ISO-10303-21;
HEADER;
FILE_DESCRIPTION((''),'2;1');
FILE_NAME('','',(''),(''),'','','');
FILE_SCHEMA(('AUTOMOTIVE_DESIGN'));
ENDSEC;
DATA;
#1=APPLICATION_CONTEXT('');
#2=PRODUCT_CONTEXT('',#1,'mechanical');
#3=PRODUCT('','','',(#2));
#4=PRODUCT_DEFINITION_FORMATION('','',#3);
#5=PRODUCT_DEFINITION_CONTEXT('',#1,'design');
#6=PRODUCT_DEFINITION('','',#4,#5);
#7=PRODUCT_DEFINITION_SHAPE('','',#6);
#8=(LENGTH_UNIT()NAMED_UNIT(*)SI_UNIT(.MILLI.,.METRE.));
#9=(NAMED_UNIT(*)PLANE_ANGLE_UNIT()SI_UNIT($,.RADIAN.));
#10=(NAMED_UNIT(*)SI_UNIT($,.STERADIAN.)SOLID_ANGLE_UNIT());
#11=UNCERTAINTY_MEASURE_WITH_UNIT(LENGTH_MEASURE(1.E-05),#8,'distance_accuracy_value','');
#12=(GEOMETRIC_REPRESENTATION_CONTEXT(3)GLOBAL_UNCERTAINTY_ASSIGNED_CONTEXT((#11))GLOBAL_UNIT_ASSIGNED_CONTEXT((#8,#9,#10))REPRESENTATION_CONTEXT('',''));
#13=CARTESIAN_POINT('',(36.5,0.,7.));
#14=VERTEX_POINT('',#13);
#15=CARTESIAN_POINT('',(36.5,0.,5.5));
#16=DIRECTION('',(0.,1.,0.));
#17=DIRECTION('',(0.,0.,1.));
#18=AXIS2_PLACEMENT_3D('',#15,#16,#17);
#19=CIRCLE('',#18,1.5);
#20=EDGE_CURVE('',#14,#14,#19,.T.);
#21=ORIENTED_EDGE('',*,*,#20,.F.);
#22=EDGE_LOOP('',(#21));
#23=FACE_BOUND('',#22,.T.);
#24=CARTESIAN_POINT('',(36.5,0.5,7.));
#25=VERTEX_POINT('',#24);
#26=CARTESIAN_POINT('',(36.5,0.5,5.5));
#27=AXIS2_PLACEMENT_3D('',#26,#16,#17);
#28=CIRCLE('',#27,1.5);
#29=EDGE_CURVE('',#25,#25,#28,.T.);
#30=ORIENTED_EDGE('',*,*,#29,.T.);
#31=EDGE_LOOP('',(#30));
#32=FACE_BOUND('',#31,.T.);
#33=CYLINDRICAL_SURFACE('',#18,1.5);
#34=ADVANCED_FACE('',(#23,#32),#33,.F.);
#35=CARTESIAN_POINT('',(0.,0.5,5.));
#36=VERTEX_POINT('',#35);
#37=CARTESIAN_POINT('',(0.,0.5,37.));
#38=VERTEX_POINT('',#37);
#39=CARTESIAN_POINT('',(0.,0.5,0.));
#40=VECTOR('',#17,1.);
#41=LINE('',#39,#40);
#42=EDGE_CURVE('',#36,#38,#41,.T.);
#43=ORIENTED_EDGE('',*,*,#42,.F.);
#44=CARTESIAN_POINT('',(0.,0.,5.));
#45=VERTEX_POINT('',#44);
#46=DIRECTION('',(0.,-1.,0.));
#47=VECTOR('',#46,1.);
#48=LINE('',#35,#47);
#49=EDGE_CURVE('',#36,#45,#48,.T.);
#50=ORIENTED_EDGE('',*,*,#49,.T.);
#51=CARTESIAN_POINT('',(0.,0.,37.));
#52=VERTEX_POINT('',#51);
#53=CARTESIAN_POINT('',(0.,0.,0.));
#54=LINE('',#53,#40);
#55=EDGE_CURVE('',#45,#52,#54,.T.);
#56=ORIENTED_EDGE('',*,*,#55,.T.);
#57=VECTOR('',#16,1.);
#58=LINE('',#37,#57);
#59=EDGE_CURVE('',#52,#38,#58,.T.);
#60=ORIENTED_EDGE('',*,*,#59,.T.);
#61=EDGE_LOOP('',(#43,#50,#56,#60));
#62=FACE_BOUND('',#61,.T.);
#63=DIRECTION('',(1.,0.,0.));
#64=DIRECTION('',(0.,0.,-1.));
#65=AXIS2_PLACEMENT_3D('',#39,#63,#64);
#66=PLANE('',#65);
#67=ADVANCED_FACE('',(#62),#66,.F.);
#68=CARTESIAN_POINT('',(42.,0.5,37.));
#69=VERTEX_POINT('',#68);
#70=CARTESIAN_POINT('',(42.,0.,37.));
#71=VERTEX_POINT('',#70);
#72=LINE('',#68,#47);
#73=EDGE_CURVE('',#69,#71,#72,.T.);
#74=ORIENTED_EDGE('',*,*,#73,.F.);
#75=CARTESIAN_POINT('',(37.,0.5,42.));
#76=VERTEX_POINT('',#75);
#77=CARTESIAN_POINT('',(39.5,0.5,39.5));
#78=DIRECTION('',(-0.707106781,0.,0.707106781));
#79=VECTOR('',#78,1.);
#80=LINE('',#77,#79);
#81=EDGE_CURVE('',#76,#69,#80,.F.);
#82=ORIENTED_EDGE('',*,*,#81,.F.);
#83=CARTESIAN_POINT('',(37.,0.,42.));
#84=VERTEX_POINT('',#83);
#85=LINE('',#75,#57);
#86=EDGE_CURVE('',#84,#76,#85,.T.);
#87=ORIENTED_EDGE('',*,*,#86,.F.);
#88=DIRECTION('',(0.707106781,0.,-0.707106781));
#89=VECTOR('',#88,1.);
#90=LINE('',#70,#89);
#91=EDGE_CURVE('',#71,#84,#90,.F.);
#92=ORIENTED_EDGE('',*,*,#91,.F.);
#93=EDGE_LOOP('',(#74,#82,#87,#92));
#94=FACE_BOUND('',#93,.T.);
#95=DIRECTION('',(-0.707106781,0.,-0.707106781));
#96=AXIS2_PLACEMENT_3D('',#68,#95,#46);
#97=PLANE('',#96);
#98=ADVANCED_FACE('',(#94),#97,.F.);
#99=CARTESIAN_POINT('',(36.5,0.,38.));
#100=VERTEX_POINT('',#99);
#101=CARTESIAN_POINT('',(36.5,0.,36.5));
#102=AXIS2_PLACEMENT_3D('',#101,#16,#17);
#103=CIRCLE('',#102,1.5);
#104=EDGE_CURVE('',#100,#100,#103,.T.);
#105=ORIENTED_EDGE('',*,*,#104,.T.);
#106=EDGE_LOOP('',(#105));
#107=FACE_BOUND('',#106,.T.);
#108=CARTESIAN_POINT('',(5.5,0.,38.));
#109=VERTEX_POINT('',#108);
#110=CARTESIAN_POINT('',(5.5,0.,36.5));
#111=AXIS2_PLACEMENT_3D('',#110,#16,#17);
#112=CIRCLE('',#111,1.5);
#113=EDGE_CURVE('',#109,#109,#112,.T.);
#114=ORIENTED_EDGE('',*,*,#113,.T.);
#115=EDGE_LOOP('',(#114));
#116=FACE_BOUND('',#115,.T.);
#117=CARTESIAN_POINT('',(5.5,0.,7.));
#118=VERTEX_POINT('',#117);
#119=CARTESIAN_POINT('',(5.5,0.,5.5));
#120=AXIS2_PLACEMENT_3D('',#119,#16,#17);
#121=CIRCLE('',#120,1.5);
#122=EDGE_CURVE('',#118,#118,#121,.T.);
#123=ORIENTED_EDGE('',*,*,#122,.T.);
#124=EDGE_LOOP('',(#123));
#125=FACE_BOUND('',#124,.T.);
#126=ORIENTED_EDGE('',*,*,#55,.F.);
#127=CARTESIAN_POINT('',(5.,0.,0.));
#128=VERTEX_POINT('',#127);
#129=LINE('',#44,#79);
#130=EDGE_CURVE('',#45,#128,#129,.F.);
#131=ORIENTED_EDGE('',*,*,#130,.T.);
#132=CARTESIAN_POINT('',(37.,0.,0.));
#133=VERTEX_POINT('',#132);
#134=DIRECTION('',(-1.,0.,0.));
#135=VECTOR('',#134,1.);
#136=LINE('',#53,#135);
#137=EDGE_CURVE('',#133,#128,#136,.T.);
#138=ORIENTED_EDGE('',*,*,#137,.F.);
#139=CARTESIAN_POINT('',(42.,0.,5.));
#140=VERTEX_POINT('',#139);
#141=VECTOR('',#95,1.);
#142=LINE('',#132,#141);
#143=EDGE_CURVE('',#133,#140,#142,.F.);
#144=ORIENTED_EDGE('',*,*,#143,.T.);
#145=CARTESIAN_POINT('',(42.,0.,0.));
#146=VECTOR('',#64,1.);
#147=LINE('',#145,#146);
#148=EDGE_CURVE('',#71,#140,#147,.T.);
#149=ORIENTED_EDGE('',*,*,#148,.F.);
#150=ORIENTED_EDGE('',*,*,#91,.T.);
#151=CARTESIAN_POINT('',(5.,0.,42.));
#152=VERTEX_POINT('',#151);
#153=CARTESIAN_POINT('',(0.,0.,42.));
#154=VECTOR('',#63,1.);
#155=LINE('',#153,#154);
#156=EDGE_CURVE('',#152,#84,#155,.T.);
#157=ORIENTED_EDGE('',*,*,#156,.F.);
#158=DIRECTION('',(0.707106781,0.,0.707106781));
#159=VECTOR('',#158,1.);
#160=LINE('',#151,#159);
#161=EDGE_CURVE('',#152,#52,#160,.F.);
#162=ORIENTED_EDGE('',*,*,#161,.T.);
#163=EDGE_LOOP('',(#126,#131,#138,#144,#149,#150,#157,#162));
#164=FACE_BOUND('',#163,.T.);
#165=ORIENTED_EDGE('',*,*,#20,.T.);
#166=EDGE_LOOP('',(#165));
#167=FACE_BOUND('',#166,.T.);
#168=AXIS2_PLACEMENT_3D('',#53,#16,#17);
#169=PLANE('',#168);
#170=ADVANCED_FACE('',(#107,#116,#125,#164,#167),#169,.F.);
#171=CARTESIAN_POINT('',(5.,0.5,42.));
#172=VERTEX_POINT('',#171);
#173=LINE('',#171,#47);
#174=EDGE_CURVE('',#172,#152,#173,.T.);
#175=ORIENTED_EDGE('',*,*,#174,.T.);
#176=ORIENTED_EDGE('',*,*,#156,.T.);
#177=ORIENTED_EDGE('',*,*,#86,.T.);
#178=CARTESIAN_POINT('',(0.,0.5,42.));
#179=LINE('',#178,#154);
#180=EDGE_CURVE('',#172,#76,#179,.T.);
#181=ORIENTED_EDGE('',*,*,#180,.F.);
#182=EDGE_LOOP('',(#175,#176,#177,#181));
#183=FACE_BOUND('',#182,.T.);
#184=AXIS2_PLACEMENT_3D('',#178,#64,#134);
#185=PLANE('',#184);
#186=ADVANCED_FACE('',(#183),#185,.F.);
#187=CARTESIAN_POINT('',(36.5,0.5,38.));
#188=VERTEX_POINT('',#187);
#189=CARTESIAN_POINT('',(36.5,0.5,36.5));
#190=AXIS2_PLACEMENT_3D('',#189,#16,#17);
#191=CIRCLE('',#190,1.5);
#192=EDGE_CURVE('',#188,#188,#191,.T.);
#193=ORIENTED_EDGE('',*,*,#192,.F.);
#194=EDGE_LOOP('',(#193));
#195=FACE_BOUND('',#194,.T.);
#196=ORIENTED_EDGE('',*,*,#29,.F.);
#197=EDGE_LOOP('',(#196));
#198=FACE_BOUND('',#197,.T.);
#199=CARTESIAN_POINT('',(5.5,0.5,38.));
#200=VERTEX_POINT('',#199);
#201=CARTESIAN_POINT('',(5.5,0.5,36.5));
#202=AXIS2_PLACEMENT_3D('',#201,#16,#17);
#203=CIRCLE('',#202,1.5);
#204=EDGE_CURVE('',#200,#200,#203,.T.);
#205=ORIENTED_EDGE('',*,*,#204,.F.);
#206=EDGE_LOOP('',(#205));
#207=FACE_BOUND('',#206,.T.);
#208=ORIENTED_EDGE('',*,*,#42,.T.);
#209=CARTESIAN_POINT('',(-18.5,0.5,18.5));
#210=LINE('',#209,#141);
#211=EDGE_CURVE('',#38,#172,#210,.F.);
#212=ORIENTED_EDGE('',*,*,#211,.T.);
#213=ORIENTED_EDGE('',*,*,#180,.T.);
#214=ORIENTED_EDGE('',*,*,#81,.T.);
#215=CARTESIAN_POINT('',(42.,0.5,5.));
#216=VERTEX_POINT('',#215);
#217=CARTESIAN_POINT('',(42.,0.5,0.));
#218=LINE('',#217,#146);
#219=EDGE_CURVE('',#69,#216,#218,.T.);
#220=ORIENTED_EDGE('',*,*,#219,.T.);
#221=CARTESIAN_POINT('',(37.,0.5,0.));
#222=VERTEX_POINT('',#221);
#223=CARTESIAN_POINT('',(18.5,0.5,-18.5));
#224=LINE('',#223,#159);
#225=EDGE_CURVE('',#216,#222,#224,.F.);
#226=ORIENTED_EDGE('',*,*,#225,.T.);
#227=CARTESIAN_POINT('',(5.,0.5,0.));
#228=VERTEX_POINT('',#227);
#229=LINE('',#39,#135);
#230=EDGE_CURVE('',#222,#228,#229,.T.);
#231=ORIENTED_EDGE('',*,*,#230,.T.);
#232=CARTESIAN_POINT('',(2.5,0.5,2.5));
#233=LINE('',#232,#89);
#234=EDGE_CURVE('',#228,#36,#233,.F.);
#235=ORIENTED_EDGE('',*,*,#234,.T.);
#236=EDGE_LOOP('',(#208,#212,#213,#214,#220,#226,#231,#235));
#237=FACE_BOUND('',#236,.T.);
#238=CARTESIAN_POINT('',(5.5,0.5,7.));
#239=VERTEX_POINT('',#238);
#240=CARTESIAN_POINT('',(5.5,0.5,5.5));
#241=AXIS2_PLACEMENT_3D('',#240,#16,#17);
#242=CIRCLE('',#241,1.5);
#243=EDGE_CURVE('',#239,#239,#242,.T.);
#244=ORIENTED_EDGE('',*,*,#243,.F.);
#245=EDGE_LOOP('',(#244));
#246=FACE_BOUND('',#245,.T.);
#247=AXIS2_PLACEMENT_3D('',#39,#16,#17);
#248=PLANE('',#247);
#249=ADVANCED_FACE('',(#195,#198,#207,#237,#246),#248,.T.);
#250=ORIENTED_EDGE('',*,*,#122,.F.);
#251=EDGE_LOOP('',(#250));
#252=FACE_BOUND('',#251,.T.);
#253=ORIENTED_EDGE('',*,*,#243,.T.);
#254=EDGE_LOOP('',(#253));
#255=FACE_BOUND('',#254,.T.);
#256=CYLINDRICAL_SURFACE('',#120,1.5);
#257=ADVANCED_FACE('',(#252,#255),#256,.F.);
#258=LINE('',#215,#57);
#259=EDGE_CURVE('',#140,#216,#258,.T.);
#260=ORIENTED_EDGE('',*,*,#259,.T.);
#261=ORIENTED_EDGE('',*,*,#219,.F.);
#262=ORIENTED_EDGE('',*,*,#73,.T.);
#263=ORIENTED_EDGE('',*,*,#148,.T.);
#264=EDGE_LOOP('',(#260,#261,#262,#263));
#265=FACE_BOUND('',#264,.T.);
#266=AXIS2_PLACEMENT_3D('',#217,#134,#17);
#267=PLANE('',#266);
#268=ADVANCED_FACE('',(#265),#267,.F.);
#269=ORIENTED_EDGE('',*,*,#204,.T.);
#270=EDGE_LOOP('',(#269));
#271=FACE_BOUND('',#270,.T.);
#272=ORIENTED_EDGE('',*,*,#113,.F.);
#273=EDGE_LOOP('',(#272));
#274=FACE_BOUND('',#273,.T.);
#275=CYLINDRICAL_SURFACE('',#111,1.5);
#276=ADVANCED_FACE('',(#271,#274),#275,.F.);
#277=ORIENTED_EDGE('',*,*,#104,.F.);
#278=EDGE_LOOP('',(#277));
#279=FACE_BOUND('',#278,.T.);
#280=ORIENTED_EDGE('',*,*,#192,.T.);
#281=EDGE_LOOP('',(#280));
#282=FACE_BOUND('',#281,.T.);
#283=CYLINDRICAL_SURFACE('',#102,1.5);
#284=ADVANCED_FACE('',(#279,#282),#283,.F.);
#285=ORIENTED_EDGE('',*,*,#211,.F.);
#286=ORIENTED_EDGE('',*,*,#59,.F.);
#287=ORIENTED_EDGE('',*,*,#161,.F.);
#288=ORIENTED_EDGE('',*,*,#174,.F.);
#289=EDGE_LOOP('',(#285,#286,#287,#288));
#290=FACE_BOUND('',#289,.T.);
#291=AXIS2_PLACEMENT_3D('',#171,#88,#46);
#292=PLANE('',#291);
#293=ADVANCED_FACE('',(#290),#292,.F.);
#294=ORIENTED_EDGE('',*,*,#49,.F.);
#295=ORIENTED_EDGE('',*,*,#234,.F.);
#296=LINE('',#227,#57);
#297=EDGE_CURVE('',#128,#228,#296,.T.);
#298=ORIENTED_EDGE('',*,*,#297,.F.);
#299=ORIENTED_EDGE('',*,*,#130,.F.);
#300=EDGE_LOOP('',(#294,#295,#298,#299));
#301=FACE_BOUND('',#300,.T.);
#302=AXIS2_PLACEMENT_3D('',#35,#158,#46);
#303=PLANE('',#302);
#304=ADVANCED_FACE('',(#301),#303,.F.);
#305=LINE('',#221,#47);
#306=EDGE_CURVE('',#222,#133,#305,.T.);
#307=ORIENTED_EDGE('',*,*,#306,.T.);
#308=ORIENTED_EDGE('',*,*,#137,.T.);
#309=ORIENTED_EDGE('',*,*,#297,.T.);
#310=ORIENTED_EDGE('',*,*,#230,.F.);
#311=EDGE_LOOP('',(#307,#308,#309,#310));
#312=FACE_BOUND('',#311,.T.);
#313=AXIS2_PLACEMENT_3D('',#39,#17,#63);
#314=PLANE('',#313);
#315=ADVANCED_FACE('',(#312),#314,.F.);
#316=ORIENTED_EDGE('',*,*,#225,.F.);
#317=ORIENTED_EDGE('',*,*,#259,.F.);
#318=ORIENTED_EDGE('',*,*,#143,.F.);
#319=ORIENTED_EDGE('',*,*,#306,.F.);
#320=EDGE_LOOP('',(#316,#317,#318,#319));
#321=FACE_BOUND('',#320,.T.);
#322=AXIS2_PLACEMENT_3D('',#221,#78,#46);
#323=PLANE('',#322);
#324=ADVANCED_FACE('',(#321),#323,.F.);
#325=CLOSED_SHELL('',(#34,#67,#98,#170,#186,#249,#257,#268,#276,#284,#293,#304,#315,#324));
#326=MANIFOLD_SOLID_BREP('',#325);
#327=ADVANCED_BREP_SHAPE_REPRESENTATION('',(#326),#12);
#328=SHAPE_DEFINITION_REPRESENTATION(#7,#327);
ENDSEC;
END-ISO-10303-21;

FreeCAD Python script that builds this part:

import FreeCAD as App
import Part
import Sketcher
from FreeCAD import Vector
Q = App.Units.Quantity


def edges_at(feature, points):
    """Names of the edges that pass closest to the given points."""
    edges = feature.Shape.Edges
    near = lambda p: min(range(len(edges)), key=lambda i: edges[i].distToShape(Part.Vertex(*p))[0])
    return sorted({f"Edge{near(p) + 1}" for p in points})


def add_polygon(sketch, points):
    """Adds a closed chain of lines whose ends are joined by coincident constraints."""
    first, n = sketch.GeometryCount, len(points)
    for a, b in zip(points, points[1:] + points[:1]):
        sketch.addGeometry(Part.LineSegment(App.Vector(*a, 0), App.Vector(*b, 0)), False)
    for i in range(n):
        sketch.addConstraint(Sketcher.Constraint("Coincident", first + i, 2, first + (i + 1) % n, 1))

doc = App.newDocument("Part")
body = doc.addObject("PartDesign::Body", "Body")

# Sketch on XZ plane
sketch1 = body.newObject("Sketcher::SketchObject", "Sketch")
sketch1.AttachmentSupport = (doc.getObject("XZ_Plane"), [""])
sketch1.MapMode = "FlatFace"
add_polygon(sketch1, [(0, 0), (0, 42), (42, 42), (42, 0)])  # lines 0-3
sketch1.addConstraint([
    Sketcher.Constraint("Vertical", 0),
    Sketcher.Constraint("Horizontal", 1),
    Sketcher.Constraint("Vertical", 2),
    Sketcher.Constraint("Horizontal", 3),
    Sketcher.Constraint("Coincident", 3, 2, -1, 1),
    Sketcher.Constraint("Equal", 3, 0),
    Sketcher.Constraint("DistanceX", 1, 1, 1, 2, Q("42 mm")),
])
pad1 = body.newObject("PartDesign::Pad", "Pad")
pad1.Profile = sketch1
pad1.Length = 0.5
pad1.Reversed = True

# Sketch on XZ plane
sketch2 = body.newObject("Sketcher::SketchObject", "Sketch001")
sketch2.AttachmentSupport = (doc.getObject("XZ_Plane"), [""])
sketch2.MapMode = "FlatFace"
sketch2.AttachmentOffset = App.Placement(Vector(0, 0, -0.5), App.Rotation())
sketch2.addGeometry([
    Part.Circle(Vector(5.5, 5.5, 0), Vector(0, 0, 1), 1.5),
    Part.Circle(Vector(36.5, 5.5, 0), Vector(0, 0, 1), 1.5),
    Part.Circle(Vector(36.5, 36.5, 0), Vector(0, 0, 1), 1.5),
    Part.Circle(Vector(5.5, 36.5, 0), Vector(0, 0, 1), 1.5),
], False)
sketch2.addConstraint([
    Sketcher.Constraint("Equal", 0, 1),
    Sketcher.Constraint("Equal", 1, 2),
    Sketcher.Constraint("Equal", 2, 3),
    Sketcher.Constraint("Horizontal", 0, 3, 1, 3),
    Sketcher.Constraint("Horizontal", 2, 3, 3, 3),
    Sketcher.Constraint("Vertical", 1, 3, 2, 3),
    Sketcher.Constraint("Vertical", 0, 3, 3, 3),
    Sketcher.Constraint("Diameter", 0, Q("3 mm")),
    Sketcher.Constraint("DistanceX", 0, 3, 1, 3, Q("31 mm")),
    Sketcher.Constraint("DistanceY", 1, 3, 2, 3, Q("31 mm")),
    Sketcher.Constraint("DistanceX", -1, 1, 0, 3, Q("5.5 mm")),
    Sketcher.Constraint("DistanceY", -1, 1, 0, 3, Q("5.5 mm")),
])
pocket1 = body.newObject("PartDesign::Pocket", "Pocket")
pocket1.Profile = sketch2
pocket1.Length = 0.5
pocket1.Reversed = True
doc.recompute()

chamfer = body.newObject("PartDesign::Chamfer", "Chamfer")
chamfer.Base = (pocket1, edges_at(pocket1, [
    (0, 0.25, 0),
    (42, 0.25, 0),
    (42, 0.25, 42),
    (0, 0.25, 42),
]))
chamfer.Size = 5

doc.recompute()
